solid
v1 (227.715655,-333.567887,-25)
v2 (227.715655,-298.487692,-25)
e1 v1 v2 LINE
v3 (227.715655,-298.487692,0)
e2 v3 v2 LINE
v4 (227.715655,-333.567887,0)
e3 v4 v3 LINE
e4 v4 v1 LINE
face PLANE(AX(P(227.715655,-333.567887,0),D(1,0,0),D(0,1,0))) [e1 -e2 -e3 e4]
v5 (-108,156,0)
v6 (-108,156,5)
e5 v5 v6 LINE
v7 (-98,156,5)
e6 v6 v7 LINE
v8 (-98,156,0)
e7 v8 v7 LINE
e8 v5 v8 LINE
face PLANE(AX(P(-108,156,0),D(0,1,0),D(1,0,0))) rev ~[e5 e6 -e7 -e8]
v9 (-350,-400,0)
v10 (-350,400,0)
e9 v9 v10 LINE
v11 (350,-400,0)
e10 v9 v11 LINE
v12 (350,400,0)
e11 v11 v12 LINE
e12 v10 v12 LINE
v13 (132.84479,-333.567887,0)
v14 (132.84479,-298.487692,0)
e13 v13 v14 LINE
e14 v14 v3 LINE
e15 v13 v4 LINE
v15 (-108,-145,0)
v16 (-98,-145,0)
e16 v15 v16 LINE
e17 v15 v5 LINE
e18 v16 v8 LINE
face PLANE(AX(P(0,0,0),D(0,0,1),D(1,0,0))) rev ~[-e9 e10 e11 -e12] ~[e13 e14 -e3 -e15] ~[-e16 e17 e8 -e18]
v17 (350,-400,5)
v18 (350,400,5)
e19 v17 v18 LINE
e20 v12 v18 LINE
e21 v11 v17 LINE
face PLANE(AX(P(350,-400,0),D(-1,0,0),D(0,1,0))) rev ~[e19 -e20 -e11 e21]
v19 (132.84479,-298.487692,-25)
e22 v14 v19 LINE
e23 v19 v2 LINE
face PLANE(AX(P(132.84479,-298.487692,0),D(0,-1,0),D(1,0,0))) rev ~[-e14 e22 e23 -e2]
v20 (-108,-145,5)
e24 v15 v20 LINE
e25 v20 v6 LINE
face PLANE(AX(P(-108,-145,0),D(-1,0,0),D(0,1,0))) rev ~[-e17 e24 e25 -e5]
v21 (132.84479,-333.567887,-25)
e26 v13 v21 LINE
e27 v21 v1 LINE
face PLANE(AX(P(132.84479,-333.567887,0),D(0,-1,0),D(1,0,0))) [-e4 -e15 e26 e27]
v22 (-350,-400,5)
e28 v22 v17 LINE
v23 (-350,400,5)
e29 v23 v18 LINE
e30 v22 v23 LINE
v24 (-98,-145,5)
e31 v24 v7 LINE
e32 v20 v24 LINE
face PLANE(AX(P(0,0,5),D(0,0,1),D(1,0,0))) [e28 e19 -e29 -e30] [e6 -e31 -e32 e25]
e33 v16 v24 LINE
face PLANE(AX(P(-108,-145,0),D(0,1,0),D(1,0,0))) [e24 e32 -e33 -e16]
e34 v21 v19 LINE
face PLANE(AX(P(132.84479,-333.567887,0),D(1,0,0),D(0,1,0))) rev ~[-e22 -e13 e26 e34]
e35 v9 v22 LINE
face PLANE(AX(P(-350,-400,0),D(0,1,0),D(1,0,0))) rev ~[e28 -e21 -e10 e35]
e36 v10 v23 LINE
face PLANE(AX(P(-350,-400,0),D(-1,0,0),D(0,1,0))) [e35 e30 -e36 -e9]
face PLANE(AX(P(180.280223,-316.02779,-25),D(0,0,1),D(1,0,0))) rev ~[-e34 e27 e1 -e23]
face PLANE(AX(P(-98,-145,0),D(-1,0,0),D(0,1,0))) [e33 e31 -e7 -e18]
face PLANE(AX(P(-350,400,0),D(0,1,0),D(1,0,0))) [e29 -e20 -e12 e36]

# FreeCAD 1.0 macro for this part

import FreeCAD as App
import Part
import Sketcher
from FreeCAD import Vector
Q = App.Units.Quantity

doc = App.newDocument("Part")
body = doc.addObject("PartDesign::Body", "Body")

# Sketch on XY plane
sketch1 = body.newObject("Sketcher::SketchObject", "Sketch")
sketch1.AttachmentSupport = (doc.getObject("XY_Plane"), [""])
sketch1.MapMode = "FlatFace"
sketch1.addGeometry(Part.LineSegment(Vector(-350, 400, 0), Vector(-350, -400, 0)), False)
sketch1.addGeometry(Part.LineSegment(Vector(-350, -400, 0), Vector(350, -400, 0)), False)
sketch1.addGeometry(Part.LineSegment(Vector(350, -400, 0), Vector(350, 400, 0)), False)
sketch1.addGeometry(Part.LineSegment(Vector(350, 400, 0), Vector(-350, 400, 0)), False)
sketch1.addGeometry(Part.LineSegment(Vector(-98, -145, 0), Vector(-108, -145, 0)), False)
sketch1.addGeometry(Part.LineSegment(Vector(-108, -145, 0), Vector(-108, 156, 0)), False)
sketch1.addGeometry(Part.LineSegment(Vector(-108, 156, 0), Vector(-98, 156, 0)), False)
sketch1.addGeometry(Part.LineSegment(Vector(-98, 156, 0), Vector(-98, -145, 0)), False)
sketch1.addConstraint(Sketcher.Constraint("Coincident", 0, 2, 1, 1))
sketch1.addConstraint(Sketcher.Constraint("Coincident", 1, 2, 2, 1))
sketch1.addConstraint(Sketcher.Constraint("Coincident", 2, 2, 3, 1))
sketch1.addConstraint(Sketcher.Constraint("Coincident", 3, 2, 0, 1))
sketch1.addConstraint(Sketcher.Constraint("Coincident", 4, 2, 5, 1))
sketch1.addConstraint(Sketcher.Constraint("Coincident", 5, 2, 6, 1))
sketch1.addConstraint(Sketcher.Constraint("Coincident", 6, 2, 7, 1))
sketch1.addConstraint(Sketcher.Constraint("Coincident", 7, 2, 4, 1))
sketch1.addConstraint(Sketcher.Constraint("Vertical", 0))
sketch1.addConstraint(Sketcher.Constraint("Horizontal", 1))
sketch1.addConstraint(Sketcher.Constraint("Vertical", 2))
sketch1.addConstraint(Sketcher.Constraint("Horizontal", 3))
sketch1.addConstraint(Sketcher.Constraint("Horizontal", 4))
sketch1.addConstraint(Sketcher.Constraint("Vertical", 5))
sketch1.addConstraint(Sketcher.Constraint("Horizontal", 6))
sketch1.addConstraint(Sketcher.Constraint("Vertical", 7))
sketch1.addConstraint(Sketcher.Constraint("Symmetric", 0, 2, 2, 2, -1, 1))
sketch1.addConstraint(Sketcher.Constraint("DistanceX", 1, 1, 1, 2, Q("700 mm")))
sketch1.addConstraint(Sketcher.Constraint("DistanceX", 4, 2, 4, 1, Q("10 mm")))
sketch1.addConstraint(Sketcher.Constraint("DistanceY", 0, 2, 0, 1, Q("800 mm")))
sketch1.addConstraint(Sketcher.Constraint("DistanceY", 5, 1, 5, 2, Q("301 mm")))
sketch1.addConstraint(Sketcher.Constraint("DistanceX", 4, 2, -1, 1, Q("108 mm")))
sketch1.addConstraint(Sketcher.Constraint("DistanceY", 4, 2, -1, 1, Q("145 mm")))
pad1 = body.newObject("PartDesign::Pad", "Pad")
pad1.Profile = sketch1
pad1.Length = 5

# Sketch on XY plane
sketch2 = body.newObject("Sketcher::SketchObject", "Sketch001")
sketch2.AttachmentSupport = (doc.getObject("XY_Plane"), [""])
sketch2.MapMode = "FlatFace"
sketch2.addGeometry(Part.LineSegment(Vector(133, -298, 0), Vector(133, -334, 0)), False)
sketch2.addGeometry(Part.LineSegment(Vector(133, -334, 0), Vector(228, -334, 0)), False)
sketch2.addGeometry(Part.LineSegment(Vector(228, -334, 0), Vector(228, -298, 0)), False)
sketch2.addGeometry(Part.LineSegment(Vector(228, -298, 0), Vector(133, -298, 0)), False)
sketch2.addConstraint(Sketcher.Constraint("Coincident", 0, 2, 1, 1))
sketch2.addConstraint(Sketcher.Constraint("Coincident", 1, 2, 2, 1))
sketch2.addConstraint(Sketcher.Constraint("Coincident", 2, 2, 3, 1))
sketch2.addConstraint(Sketcher.Constraint("Coincident", 3, 2, 0, 1))
sketch2.addConstraint(Sketcher.Constraint("Vertical", 0))
sketch2.addConstraint(Sketcher.Constraint("Horizontal", 1))
sketch2.addConstraint(Sketcher.Constraint("Vertical", 2))
sketch2.addConstraint(Sketcher.Constraint("Horizontal", 3))
sketch2.addConstraint(Sketcher.Constraint("DistanceX", 1, 1, 1, 2, Q("94.870865 mm")))
sketch2.addConstraint(Sketcher.Constraint("DistanceY", 0, 2, 0, 1, Q("35.080195 mm")))
sketch2.addConstraint(Sketcher.Constraint("DistanceX", -1, 1, 0, 2, Q("132.84479 mm")))
sketch2.addConstraint(Sketcher.Constraint("DistanceY", 0, 2, -1, 1, Q("333.567887 mm")))
pad2 = body.newObject("PartDesign::Pad", "Pad001")
pad2.Profile = sketch2
pad2.Length = 25
pad2.Reversed = True

doc.recompute()
